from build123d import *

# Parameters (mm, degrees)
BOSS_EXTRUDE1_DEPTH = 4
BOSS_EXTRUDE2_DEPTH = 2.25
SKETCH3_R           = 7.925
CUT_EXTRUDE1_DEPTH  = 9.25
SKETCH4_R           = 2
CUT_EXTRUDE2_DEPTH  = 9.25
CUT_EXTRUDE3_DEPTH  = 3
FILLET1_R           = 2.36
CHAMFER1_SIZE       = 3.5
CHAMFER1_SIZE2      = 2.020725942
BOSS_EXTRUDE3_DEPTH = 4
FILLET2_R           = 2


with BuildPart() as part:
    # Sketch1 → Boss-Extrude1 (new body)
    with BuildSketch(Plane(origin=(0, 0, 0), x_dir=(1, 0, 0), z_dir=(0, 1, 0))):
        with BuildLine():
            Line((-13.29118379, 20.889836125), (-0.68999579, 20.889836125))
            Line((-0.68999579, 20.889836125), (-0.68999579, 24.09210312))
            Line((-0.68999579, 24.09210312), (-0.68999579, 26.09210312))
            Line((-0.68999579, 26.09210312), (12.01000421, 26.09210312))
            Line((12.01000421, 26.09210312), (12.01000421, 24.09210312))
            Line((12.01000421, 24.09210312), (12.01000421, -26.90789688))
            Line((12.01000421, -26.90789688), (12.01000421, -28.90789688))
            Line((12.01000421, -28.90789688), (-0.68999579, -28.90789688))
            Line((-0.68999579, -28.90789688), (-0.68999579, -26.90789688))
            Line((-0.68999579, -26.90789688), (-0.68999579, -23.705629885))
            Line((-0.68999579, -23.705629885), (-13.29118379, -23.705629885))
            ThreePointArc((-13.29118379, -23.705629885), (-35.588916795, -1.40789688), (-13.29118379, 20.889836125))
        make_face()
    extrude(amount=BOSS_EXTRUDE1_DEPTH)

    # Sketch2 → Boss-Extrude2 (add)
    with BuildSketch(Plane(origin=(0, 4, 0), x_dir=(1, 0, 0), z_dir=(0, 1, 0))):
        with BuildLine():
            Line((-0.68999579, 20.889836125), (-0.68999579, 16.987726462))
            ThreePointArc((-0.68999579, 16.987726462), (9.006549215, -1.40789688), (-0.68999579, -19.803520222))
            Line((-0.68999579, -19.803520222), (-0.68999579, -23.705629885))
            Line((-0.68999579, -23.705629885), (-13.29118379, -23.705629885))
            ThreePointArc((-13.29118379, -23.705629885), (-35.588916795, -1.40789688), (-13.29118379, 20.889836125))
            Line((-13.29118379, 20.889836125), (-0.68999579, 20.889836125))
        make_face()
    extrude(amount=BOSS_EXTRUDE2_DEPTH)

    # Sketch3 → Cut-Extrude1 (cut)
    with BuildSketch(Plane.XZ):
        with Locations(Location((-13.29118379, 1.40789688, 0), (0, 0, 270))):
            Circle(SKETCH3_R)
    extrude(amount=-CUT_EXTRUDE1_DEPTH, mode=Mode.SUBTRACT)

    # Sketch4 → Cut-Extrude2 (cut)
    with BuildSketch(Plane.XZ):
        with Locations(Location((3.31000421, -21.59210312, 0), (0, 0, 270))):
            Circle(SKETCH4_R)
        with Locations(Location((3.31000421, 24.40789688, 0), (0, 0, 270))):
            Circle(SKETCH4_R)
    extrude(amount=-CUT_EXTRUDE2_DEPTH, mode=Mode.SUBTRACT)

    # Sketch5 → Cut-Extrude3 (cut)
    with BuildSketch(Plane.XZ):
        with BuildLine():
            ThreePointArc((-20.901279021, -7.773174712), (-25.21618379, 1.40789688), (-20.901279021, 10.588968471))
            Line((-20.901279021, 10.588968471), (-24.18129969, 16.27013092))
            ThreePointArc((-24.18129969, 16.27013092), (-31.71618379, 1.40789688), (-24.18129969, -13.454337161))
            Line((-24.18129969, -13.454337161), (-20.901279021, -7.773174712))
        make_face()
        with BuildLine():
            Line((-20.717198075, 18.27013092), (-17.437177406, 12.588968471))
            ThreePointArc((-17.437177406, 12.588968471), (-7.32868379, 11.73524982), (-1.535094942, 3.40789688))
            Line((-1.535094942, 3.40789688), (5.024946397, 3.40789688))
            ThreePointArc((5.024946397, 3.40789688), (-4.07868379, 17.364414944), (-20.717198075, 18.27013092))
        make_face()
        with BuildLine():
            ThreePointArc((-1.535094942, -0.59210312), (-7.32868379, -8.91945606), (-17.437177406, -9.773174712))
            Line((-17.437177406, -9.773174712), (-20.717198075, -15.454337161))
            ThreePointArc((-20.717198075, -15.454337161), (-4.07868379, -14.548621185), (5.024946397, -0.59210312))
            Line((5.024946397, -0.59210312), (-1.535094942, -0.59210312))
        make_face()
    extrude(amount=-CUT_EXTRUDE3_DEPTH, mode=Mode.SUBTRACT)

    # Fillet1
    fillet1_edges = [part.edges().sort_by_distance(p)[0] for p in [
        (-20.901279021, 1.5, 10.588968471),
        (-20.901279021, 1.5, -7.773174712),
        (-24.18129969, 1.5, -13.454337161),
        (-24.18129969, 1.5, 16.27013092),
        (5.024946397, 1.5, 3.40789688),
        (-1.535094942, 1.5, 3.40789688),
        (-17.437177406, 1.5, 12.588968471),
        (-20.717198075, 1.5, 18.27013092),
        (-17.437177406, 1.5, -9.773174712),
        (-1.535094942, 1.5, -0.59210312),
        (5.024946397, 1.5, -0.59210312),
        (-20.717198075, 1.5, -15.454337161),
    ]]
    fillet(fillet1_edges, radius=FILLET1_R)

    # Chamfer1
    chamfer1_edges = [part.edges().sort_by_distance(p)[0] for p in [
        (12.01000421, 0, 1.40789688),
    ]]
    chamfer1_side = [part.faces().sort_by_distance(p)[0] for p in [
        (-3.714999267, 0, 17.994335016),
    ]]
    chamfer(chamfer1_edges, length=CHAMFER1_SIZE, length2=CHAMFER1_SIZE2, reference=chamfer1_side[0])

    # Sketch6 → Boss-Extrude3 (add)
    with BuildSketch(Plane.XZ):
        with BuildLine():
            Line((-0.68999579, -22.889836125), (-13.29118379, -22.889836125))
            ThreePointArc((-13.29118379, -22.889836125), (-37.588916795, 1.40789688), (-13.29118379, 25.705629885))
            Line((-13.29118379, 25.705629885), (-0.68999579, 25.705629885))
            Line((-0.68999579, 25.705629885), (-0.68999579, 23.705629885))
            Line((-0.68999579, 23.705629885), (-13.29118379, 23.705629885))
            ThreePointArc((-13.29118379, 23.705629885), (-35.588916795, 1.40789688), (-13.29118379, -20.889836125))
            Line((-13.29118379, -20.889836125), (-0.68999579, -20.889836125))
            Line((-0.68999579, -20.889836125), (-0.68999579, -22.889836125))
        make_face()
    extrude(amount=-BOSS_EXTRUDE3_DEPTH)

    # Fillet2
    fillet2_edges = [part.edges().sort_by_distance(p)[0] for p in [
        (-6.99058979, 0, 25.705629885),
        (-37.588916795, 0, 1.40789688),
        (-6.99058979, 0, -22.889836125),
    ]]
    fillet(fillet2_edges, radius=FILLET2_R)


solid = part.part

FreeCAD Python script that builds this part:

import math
import FreeCAD as App
import Part
import Sketcher

V = App.Vector
Q = App.Units.Quantity


def edges_at(feature, points):
    """Names of the edges that pass closest to the given points."""
    edges = feature.Shape.Edges
    near = lambda p: min(range(len(edges)), key=lambda i: edges[i].distToShape(Part.Vertex(*p))[0])
    return sorted({f"Edge{near(p) + 1}" for p in points})

doc = App.newDocument("Part")
body = doc.addObject("PartDesign::Body", "Body")

# Sketch on XZ plane
sketch1 = body.newObject("Sketcher::SketchObject", "Sketch")
sketch1.AttachmentSupport = (doc.getObject("XZ_Plane"), [""])
sketch1.MapMode = "FlatFace"
sketch1.addGeometry([
    Part.LineSegment(V(-1, -21, 0), V(-13, -21, 0)),  # 0
    Part.ArcOfCircle(Part.Circle(V(-13, 1, 0), V(0, 0, 1), 22), math.radians(90), math.radians(270)),  # 1
    Part.LineSegment(V(-13, 24, 0), V(-1, 24, 0)),  # 2
    Part.LineSegment(V(-1, 24, 0), V(-1, 29, 0)),  # 3
    Part.LineSegment(V(-1, 29, 0), V(12, 29, 0)),  # 4
    Part.LineSegment(V(12, 29, 0), V(12, -26, 0)),  # 5
    Part.LineSegment(V(12, -26, 0), V(-1, -26, 0)),  # 6
    Part.LineSegment(V(-1, -26, 0), V(-1, -21, 0)),  # 7
], False)
sketch1.addConstraint([
    Sketcher.Constraint("Tangent", 0, 2, 1, 2),
    Sketcher.Constraint("Tangent", 1, 1, 2, 1),
    Sketcher.Constraint("Coincident", 2, 2, 3, 1),
    Sketcher.Constraint("Coincident", 3, 2, 4, 1),
    Sketcher.Constraint("Coincident", 4, 2, 5, 1),
    Sketcher.Constraint("Coincident", 5, 2, 6, 1),
    Sketcher.Constraint("Coincident", 6, 2, 7, 1),
    Sketcher.Constraint("Coincident", 7, 2, 0, 1),
    Sketcher.Constraint("Horizontal", 0),
    Sketcher.Constraint("Horizontal", 2),
    Sketcher.Constraint("Vertical", 3),
    Sketcher.Constraint("Horizontal", 4),
    Sketcher.Constraint("Vertical", 5),
    Sketcher.Constraint("Horizontal", 6),
    Sketcher.Constraint("Vertical", 7),
    Sketcher.Constraint("Vertical", 3, 2, 6, 2),
    Sketcher.Constraint("Equal", 3, 7),
    Sketcher.Constraint("DistanceY", 5, 2, 5, 1, Q("55 mm")),
    Sketcher.Constraint("DistanceX", 4, 1, 4, 2, Q("12.7 mm")),
    Sketcher.Constraint("Radius", 1, Q("22.297733 mm")),
    Sketcher.Constraint("DistanceX", 0, 2, 0, 1, Q("12.601188 mm")),
    Sketcher.Constraint("DistanceY", -1, 1, 1, 1, Q("23.70563 mm")),
    Sketcher.Constraint("DistanceX", 1, 3, -1, 1, Q("13.291184 mm")),
])
pad1 = body.newObject("PartDesign::Pad", "Pad")
pad1.Profile = sketch1
pad1.Length = 4
pad1.Reversed = True

# Sketch on XZ plane
sketch2 = body.newObject("Sketcher::SketchObject", "Sketch001")
sketch2.AttachmentSupport = (doc.getObject("XZ_Plane"), [""])
sketch2.MapMode = "FlatFace"
sketch2.AttachmentOffset = App.Placement(V(0, 0, -4), App.Rotation())
sketch2.addGeometry([
    Part.LineSegment(V(-0.7, -17, 0), V(-0.7, -20.9, 0)),  # 0
    Part.LineSegment(V(-0.7, -20.9, 0), V(-13.3, -20.9, 0)),  # 1
    Part.ArcOfCircle(Part.Circle(V(-13.3, 1.4, 0), V(0, 0, 1), 22.3), math.radians(90), math.radians(270)),  # 2
    Part.LineSegment(V(-13.3, 23.7, 0), V(-0.7, 23.7, 0)),  # 3
    Part.LineSegment(V(-0.7, 23.7, 0), V(-0.7, 19.8, 0)),  # 4
    Part.ArcOfCircle(Part.Circle(V(-13.3, 1.4, 0), V(0, 0, 1), 22.3), math.radians(-56), math.radians(56)),  # 5
], False)
sketch2.addConstraint([
    Sketcher.Constraint("Coincident", 0, 2, 1, 1),
    Sketcher.Constraint("Tangent", 1, 2, 2, 2),
    Sketcher.Constraint("Tangent", 2, 1, 3, 1),
    Sketcher.Constraint("Coincident", 3, 2, 4, 1),
    Sketcher.Constraint("Coincident", 4, 2, 5, 2),
    Sketcher.Constraint("Coincident", 5, 1, 0, 1),
    Sketcher.Constraint("Vertical", 0),
    Sketcher.Constraint("Horizontal", 1),
    Sketcher.Constraint("Horizontal", 3),
    Sketcher.Constraint("Vertical", 4),
    Sketcher.Constraint("Coincident", 5, 3, 2, 3),
    Sketcher.Constraint("Equal", 2, 5),
    Sketcher.Constraint("Vertical", 0, 2, 3, 2),
    Sketcher.Constraint("Radius", 2, Q("22.297733 mm")),
    Sketcher.Constraint("DistanceY", 0, 2, 0, 1, Q("3.90211 mm")),
    Sketcher.Constraint("DistanceY", -1, 1, 2, 1, Q("23.70563 mm")),
    Sketcher.Constraint("DistanceX", 2, 3, -1, 1, Q("13.291184 mm")),
])
pad2 = body.newObject("PartDesign::Pad", "Pad001")
pad2.Profile = sketch2
pad2.Length = 2.25
pad2.Reversed = True

# Sketch on XZ plane
sketch3 = body.newObject("Sketcher::SketchObject", "Sketch002")
sketch3.AttachmentSupport = (doc.getObject("XZ_Plane"), [""])
sketch3.MapMode = "FlatFace"
sketch3.addGeometry(Part.Circle(V(-13, 1, 0), V(0, 0, 1), 8), False)
sketch3.addConstraint([
    Sketcher.Constraint("Diameter", 0, Q("15.85 mm")),
    Sketcher.Constraint("DistanceX", 0, 3, -1, 1, Q("13.291184 mm")),
    Sketcher.Constraint("DistanceY", -1, 1, 0, 3, Q("1.407897 mm")),
])
pocket1 = body.newObject("PartDesign::Pocket", "Pocket")
pocket1.Profile = sketch3
pocket1.Length = 9.25

# Sketch on XZ plane
sketch4 = body.newObject("Sketcher::SketchObject", "Sketch003")
sketch4.AttachmentSupport = (doc.getObject("XZ_Plane"), [""])
sketch4.MapMode = "FlatFace"
sketch4.addGeometry([
    Part.Circle(V(3.3, -21.6, 0), V(0, 0, 1), 2),
    Part.Circle(V(3.3, 24.4, 0), V(0, 0, 1), 2),
], False)
sketch4.addConstraint([
    Sketcher.Constraint("Equal", 0, 1),
    Sketcher.Constraint("Vertical", 0, 3, 1, 3),
    Sketcher.Constraint("Diameter", 0, Q("4 mm")),
    Sketcher.Constraint("DistanceY", 0, 3, 1, 3, Q("46 mm")),
    Sketcher.Constraint("DistanceX", -1, 1, 0, 3, Q("3.310004 mm")),
    Sketcher.Constraint("DistanceY", 0, 3, -1, 1, Q("21.592103 mm")),
])
pocket2 = body.newObject("PartDesign::Pocket", "Pocket001")
pocket2.Profile = sketch4
pocket2.Length = 9.25

# Sketch on XZ plane
sketch5 = body.newObject("Sketcher::SketchObject", "Sketch004")
sketch5.AttachmentSupport = (doc.getObject("XZ_Plane"), [""])
sketch5.MapMode = "FlatFace"
sketch5.addGeometry([
    Part.ArcOfCircle(Part.Circle(V(-13, 1, 0), V(0, 0, 1), 12), math.radians(130), math.radians(230)),  # 0
    Part.LineSegment(V(-21, 11, 0), V(-24, 16, 0)),  # 1
    Part.ArcOfCircle(Part.Circle(V(-13, 1, 0), V(0, 0, 1), 18), math.radians(126), math.radians(234)),  # 2
    Part.LineSegment(V(-24, -13, 0), V(-21, -8, 0)),  # 3
    Part.LineSegment(V(-21, 18, 0), V(-17, 13, 0)),  # 4
    Part.ArcOfCircle(Part.Circle(V(-13, 1, 0), V(0, 0, 1), 12), math.radians(10), math.radians(110)),  # 5
    Part.LineSegment(V(-2, 3, 0), V(5, 3, 0)),  # 6
    Part.ArcOfCircle(Part.Circle(V(-13, 1, 0), V(0, 0, 1), 18), math.radians(6), math.radians(114)),  # 7
    Part.ArcOfCircle(Part.Circle(V(-13, 1, 0), V(0, 0, 1), 12), math.radians(-110), math.radians(-10)),  # 8
    Part.LineSegment(V(-17, -10, 0), V(-21, -15, 0)),  # 9
    Part.ArcOfCircle(Part.Circle(V(-13, 1, 0), V(0, 0, 1), 18), math.radians(-114), math.radians(-6)),  # 10
    Part.LineSegment(V(5, -1, 0), V(-2, -1, 0)),  # 11
], False)
sketch5.addConstraint([
    Sketcher.Constraint("Coincident", 0, 1, 1, 1),
    Sketcher.Constraint("Coincident", 1, 2, 2, 1),
    Sketcher.Constraint("Coincident", 2, 2, 3, 1),
    Sketcher.Constraint("Coincident", 3, 2, 0, 2),
    Sketcher.Constraint("Coincident", 4, 2, 5, 2),
    Sketcher.Constraint("Coincident", 5, 1, 6, 1),
    Sketcher.Constraint("Coincident", 6, 2, 7, 1),
    Sketcher.Constraint("Coincident", 7, 2, 4, 1),
    Sketcher.Constraint("Coincident", 8, 1, 9, 1),
    Sketcher.Constraint("Coincident", 9, 2, 10, 1),
    Sketcher.Constraint("Coincident", 10, 2, 11, 1),
    Sketcher.Constraint("Coincident", 11, 2, 8, 2),
    Sketcher.Constraint("Horizontal", 6),
    Sketcher.Constraint("Horizontal", 11),
    Sketcher.Constraint("Coincident", 2, 3, 0, 3),
    Sketcher.Constraint("Coincident", 5, 3, 0, 3),
    Sketcher.Constraint("Coincident", 7, 3, 0, 3),
    Sketcher.Constraint("Coincident", 8, 3, 0, 3),
    Sketcher.Constraint("Coincident", 10, 3, 0, 3),
    Sketcher.Constraint("Equal", 0, 5),
    Sketcher.Constraint("Equal", 2, 7),
    Sketcher.Constraint("Equal", 5, 8),
    Sketcher.Constraint("Equal", 7, 10),
    Sketcher.Constraint("Parallel", 1, 4),
    Sketcher.Constraint("Parallel", 3, 9),
    Sketcher.Constraint("Vertical", 1, 2, 2, 2),
    Sketcher.Constraint("Vertical", 0, 1, 3, 2),
    Sketcher.Constraint("Vertical", 4, 2, 8, 1),
    Sketcher.Constraint("Vertical", 6, 2, 10, 2),
    Sketcher.Constraint("Equal", 3, 4),
    Sketcher.Constraint("Angle", 1, Q("120 deg")),
    Sketcher.Constraint("Radius", 0, Q("11.925 mm")),
    Sketcher.Constraint("Radius", 2, Q("18.425 mm")),
    Sketcher.Constraint("DistanceY", 0, 1, 4, 2, Q("2 mm")),
    Sketcher.Constraint("DistanceY", 5, 3, 5, 1, Q("2 mm")),
    Sketcher.Constraint("DistanceX", 1, 2, -1, 1, Q("24.1813 mm")),
    Sketcher.Constraint("DistanceY", -1, 1, 0, 1, Q("10.588968 mm")),
])
pocket3 = body.newObject("PartDesign::Pocket", "Pocket002")
pocket3.Profile = sketch5
pocket3.Length = 3
doc.recompute()

fillet = body.newObject("PartDesign::Fillet", "Fillet")
fillet.Base = (pocket3, edges_at(pocket3, [
    (-20.901, 1.5, 10.589),
    (-20.901, 1.5, -7.773),
    (-24.181, 1.5, -13.454),
    (-24.181, 1.5, 16.27),
    (5.025, 1.5, 3.408),
    (-1.535, 1.5, 3.408),
    (-17.437, 1.5, 12.589),
    (-20.717, 1.5, 18.27),
    (-17.437, 1.5, -9.773),
    (-1.535, 1.5, -0.592),
    (5.025, 1.5, -0.592),
    (-20.717, 1.5, -15.454),
]))
fillet.Radius = 2.36
doc.recompute()

chamfer = body.newObject("PartDesign::Chamfer", "Chamfer")
chamfer.Base = (fillet, edges_at(fillet, [(12.01, 0, 1.408)]))
chamfer.ChamferType = "Two distances"
chamfer.Size = 3.5
chamfer.Size2 = 2.020726

# Sketch on XZ plane
sketch6 = body.newObject("Sketcher::SketchObject", "Sketch005")
sketch6.AttachmentSupport = (doc.getObject("XZ_Plane"), [""])
sketch6.MapMode = "FlatFace"
sketch6.addGeometry([
    Part.LineSegment(V(-13.3, -22.9, 0), V(-0.7, -22.9, 0)),  # 0
    Part.LineSegment(V(-0.7, -22.9, 0), V(-0.7, -20.9, 0)),  # 1
    Part.LineSegment(V(-0.7, -20.9, 0), V(-13.3, -20.9, 0)),  # 2
    Part.ArcOfCircle(Part.Circle(V(-13.3, 1.4, 0), V(0, 0, 1), 22.3), math.radians(90), math.radians(270)),  # 3
    Part.LineSegment(V(-13.3, 23.7, 0), V(-0.7, 23.7, 0)),  # 4
    Part.LineSegment(V(-0.7, 23.7, 0), V(-0.7, 25.7, 0)),  # 5
    Part.LineSegment(V(-0.7, 25.7, 0), V(-13.3, 25.7, 0)),  # 6
    Part.ArcOfCircle(Part.Circle(V(-13.3, 1.4, 0), V(0, 0, 1), 24.3), math.radians(90), math.radians(270)),  # 7
], False)
sketch6.addConstraint([
    Sketcher.Constraint("Coincident", 0, 2, 1, 1),
    Sketcher.Constraint("Coincident", 1, 2, 2, 1),
    Sketcher.Constraint("Tangent", 2, 2, 3, 2),
    Sketcher.Constraint("Tangent", 3, 1, 4, 1),
    Sketcher.Constraint("Coincident", 4, 2, 5, 1),
    Sketcher.Constraint("Coincident", 5, 2, 6, 1),
    Sketcher.Constraint("Tangent", 6, 2, 7, 1),
    Sketcher.Constraint("Tangent", 7, 2, 0, 1),
    Sketcher.Constraint("Horizontal", 0),
    Sketcher.Constraint("Vertical", 1),
    Sketcher.Constraint("Horizontal", 2),
    Sketcher.Constraint("Horizontal", 4),
    Sketcher.Constraint("Vertical", 5),
    Sketcher.Constraint("Horizontal", 6),
    Sketcher.Constraint("Coincident", 7, 3, 3, 3),
    Sketcher.Constraint("Vertical", 1, 2, 4, 2),
    Sketcher.Constraint("DistanceY", 1, 1, 1, 2, Q("2 mm")),
    Sketcher.Constraint("Radius", 3, Q("22.297733 mm")),
    Sketcher.Constraint("DistanceX", 0, 1, 0, 2, Q("12.601188 mm")),
    Sketcher.Constraint("DistanceY", -1, 1, 3, 1, Q("23.70563 mm")),
    Sketcher.Constraint("DistanceX", 3, 3, -1, 1, Q("13.291184 mm")),
])
pad3 = body.newObject("PartDesign::Pad", "Pad002")
pad3.Profile = sketch6
pad3.Length = 4
pad3.Reversed = True
doc.recompute()

fillet2 = body.newObject("PartDesign::Fillet", "Fillet001")
fillet2.Base = (pad3, edges_at(pad3, [(-6.991, 0, 25.706), (-37.589, 0, 1.408), (-6.991, 0, -22.89)]))
fillet2.Radius = 2

doc.recompute()
